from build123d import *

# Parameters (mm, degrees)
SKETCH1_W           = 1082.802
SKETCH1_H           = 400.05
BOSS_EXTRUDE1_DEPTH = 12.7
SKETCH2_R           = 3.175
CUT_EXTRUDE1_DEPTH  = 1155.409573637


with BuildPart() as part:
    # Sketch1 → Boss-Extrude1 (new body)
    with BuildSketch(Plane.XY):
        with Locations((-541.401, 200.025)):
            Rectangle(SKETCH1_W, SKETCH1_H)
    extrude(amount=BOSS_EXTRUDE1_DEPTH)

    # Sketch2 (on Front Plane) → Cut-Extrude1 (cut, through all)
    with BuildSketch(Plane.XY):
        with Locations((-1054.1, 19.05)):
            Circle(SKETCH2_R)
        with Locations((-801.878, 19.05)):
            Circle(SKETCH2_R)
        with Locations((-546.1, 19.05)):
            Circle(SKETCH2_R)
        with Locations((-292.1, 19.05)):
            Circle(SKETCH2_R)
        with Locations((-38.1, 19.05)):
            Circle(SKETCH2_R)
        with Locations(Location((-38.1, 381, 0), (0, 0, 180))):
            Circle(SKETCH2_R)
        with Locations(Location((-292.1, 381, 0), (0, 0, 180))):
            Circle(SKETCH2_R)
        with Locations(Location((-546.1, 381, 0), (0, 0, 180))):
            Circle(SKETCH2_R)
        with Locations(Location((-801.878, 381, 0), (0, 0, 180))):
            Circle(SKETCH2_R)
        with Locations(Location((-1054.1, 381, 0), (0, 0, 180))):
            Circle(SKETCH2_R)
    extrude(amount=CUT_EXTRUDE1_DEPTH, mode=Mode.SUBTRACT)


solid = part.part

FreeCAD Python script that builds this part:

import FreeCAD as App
import Part
import Sketcher
Q = App.Units.Quantity


def add_polygon(sketch, points):
    """Adds a closed chain of lines whose ends are joined by coincident constraints."""
    first, n = sketch.GeometryCount, len(points)
    for a, b in zip(points, points[1:] + points[:1]):
        sketch.addGeometry(Part.LineSegment(App.Vector(*a, 0), App.Vector(*b, 0)), False)
    for i in range(n):
        sketch.addConstraint(Sketcher.Constraint("Coincident", first + i, 2, first + (i + 1) % n, 1))

doc = App.newDocument("Part")
body = doc.addObject("PartDesign::Body", "Body")

sketch1 = body.newObject("Sketcher::SketchObject", "Sketch")
sketch1.AttachmentSupport = (doc.getObject("XY_Plane"), [""])
sketch1.MapMode = "FlatFace"
add_polygon(sketch1, [(-1083, 400), (-1083, 0), (0, 0), (0, 400)])
sketch1.addConstraint(Sketcher.Constraint("Vertical", 0))
sketch1.addConstraint(Sketcher.Constraint("Horizontal", 1))
sketch1.addConstraint(Sketcher.Constraint("Vertical", 2))
sketch1.addConstraint(Sketcher.Constraint("Horizontal", 3))
sketch1.addConstraint(Sketcher.Constraint("Coincident", 1, 2, -1, 1))
sketch1.addConstraint(Sketcher.Constraint("DistanceX", 1, 1, 1, 2, Q("42.63 in")))
sketch1.addConstraint(Sketcher.Constraint("DistanceY", 0, 2, 0, 1, Q("15.75 in")))
pad1 = body.newObject("PartDesign::Pad", "Pad")
pad1.Profile = sketch1
pad1.Length = Q("0.5 in")

sketch2 = body.newObject("Sketcher::SketchObject", "Sketch001")
sketch2.AttachmentSupport = (doc.getObject("XY_Plane"), [""])
sketch2.MapMode = "FlatFace"
sketch2.addGeometry(Part.Circle(App.Vector(-1054.1, 19.1, 0), App.Vector(0, 0, 1), 3.2), False)
sketch2.addGeometry(Part.Circle(App.Vector(-801.9, 19.1, 0), App.Vector(0, 0, 1), 3.2), False)
sketch2.addGeometry(Part.Circle(App.Vector(-546.1, 19.1, 0), App.Vector(0, 0, 1), 3.2), False)
sketch2.addGeometry(Part.Circle(App.Vector(-292.1, 19.1, 0), App.Vector(0, 0, 1), 3.2), False)
sketch2.addGeometry(Part.Circle(App.Vector(-38.1, 19.1, 0), App.Vector(0, 0, 1), 3.2), False)
sketch2.addGeometry(Part.Circle(App.Vector(-38.1, 381, 0), App.Vector(0, 0, 1), 3.2), False)
sketch2.addGeometry(Part.Circle(App.Vector(-292.1, 381, 0), App.Vector(0, 0, 1), 3.2), False)
sketch2.addGeometry(Part.Circle(App.Vector(-546.1, 381, 0), App.Vector(0, 0, 1), 3.2), False)
sketch2.addGeometry(Part.Circle(App.Vector(-801.9, 381, 0), App.Vector(0, 0, 1), 3.2), False)
sketch2.addGeometry(Part.Circle(App.Vector(-1054.1, 381, 0), App.Vector(0, 0, 1), 3.2), False)
sketch2.addConstraint(Sketcher.Constraint("Equal", 0, 1))
sketch2.addConstraint(Sketcher.Constraint("Equal", 1, 2))
sketch2.addConstraint(Sketcher.Constraint("Equal", 2, 3))
sketch2.addConstraint(Sketcher.Constraint("Equal", 3, 4))
sketch2.addConstraint(Sketcher.Constraint("Equal", 4, 5))
sketch2.addConstraint(Sketcher.Constraint("Equal", 5, 6))
sketch2.addConstraint(Sketcher.Constraint("Equal", 6, 7))
sketch2.addConstraint(Sketcher.Constraint("Equal", 7, 8))
sketch2.addConstraint(Sketcher.Constraint("Equal", 8, 9))
sketch2.addConstraint(Sketcher.Constraint("Horizontal", 0, 3, 1, 3))
sketch2.addConstraint(Sketcher.Constraint("Horizontal", 1, 3, 2, 3))
sketch2.addConstraint(Sketcher.Constraint("Horizontal", 2, 3, 3, 3))
sketch2.addConstraint(Sketcher.Constraint("Horizontal", 3, 3, 4, 3))
sketch2.addConstraint(Sketcher.Constraint("Horizontal", 5, 3, 6, 3))
sketch2.addConstraint(Sketcher.Constraint("Horizontal", 6, 3, 7, 3))
sketch2.addConstraint(Sketcher.Constraint("Horizontal", 7, 3, 8, 3))
sketch2.addConstraint(Sketcher.Constraint("Horizontal", 8, 3, 9, 3))
sketch2.addConstraint(Sketcher.Constraint("Vertical", 4, 3, 5, 3))
sketch2.addConstraint(Sketcher.Constraint("Vertical", 3, 3, 6, 3))
sketch2.addConstraint(Sketcher.Constraint("Vertical", 2, 3, 7, 3))
sketch2.addConstraint(Sketcher.Constraint("Vertical", 1, 3, 8, 3))
sketch2.addConstraint(Sketcher.Constraint("Vertical", 0, 3, 9, 3))
sketch2.addConstraint(Sketcher.Constraint("Diameter", 0, Q("0.25 in")))
sketch2.addConstraint(Sketcher.Constraint("DistanceY", -1, 1, 5, 3, Q("15 in")))
sketch2.addConstraint(Sketcher.Constraint("DistanceX", 0, 3, 2, 3, Q("20 in")))
sketch2.addConstraint(Sketcher.Constraint("DistanceX", 2, 3, 3, 3, Q("10 in")))
sketch2.addConstraint(Sketcher.Constraint("DistanceX", 3, 3, 4, 3, Q("10 in")))
sketch2.addConstraint(Sketcher.Constraint("DistanceX", 0, 3, -1, 1, Q("41.5 in")))
sketch2.addConstraint(Sketcher.Constraint("DistanceY", -1, 1, 0, 3, Q("0.75 in")))
sketch2.addConstraint(Sketcher.Constraint("DistanceX", 1, 3, -1, 1, Q("31.57 in")))
pocket1 = body.newObject("PartDesign::Pocket", "Pocket")
pocket1.Profile = sketch2
pocket1.Type = "ThroughAll"
pocket1.Reversed = True

doc.recompute()
